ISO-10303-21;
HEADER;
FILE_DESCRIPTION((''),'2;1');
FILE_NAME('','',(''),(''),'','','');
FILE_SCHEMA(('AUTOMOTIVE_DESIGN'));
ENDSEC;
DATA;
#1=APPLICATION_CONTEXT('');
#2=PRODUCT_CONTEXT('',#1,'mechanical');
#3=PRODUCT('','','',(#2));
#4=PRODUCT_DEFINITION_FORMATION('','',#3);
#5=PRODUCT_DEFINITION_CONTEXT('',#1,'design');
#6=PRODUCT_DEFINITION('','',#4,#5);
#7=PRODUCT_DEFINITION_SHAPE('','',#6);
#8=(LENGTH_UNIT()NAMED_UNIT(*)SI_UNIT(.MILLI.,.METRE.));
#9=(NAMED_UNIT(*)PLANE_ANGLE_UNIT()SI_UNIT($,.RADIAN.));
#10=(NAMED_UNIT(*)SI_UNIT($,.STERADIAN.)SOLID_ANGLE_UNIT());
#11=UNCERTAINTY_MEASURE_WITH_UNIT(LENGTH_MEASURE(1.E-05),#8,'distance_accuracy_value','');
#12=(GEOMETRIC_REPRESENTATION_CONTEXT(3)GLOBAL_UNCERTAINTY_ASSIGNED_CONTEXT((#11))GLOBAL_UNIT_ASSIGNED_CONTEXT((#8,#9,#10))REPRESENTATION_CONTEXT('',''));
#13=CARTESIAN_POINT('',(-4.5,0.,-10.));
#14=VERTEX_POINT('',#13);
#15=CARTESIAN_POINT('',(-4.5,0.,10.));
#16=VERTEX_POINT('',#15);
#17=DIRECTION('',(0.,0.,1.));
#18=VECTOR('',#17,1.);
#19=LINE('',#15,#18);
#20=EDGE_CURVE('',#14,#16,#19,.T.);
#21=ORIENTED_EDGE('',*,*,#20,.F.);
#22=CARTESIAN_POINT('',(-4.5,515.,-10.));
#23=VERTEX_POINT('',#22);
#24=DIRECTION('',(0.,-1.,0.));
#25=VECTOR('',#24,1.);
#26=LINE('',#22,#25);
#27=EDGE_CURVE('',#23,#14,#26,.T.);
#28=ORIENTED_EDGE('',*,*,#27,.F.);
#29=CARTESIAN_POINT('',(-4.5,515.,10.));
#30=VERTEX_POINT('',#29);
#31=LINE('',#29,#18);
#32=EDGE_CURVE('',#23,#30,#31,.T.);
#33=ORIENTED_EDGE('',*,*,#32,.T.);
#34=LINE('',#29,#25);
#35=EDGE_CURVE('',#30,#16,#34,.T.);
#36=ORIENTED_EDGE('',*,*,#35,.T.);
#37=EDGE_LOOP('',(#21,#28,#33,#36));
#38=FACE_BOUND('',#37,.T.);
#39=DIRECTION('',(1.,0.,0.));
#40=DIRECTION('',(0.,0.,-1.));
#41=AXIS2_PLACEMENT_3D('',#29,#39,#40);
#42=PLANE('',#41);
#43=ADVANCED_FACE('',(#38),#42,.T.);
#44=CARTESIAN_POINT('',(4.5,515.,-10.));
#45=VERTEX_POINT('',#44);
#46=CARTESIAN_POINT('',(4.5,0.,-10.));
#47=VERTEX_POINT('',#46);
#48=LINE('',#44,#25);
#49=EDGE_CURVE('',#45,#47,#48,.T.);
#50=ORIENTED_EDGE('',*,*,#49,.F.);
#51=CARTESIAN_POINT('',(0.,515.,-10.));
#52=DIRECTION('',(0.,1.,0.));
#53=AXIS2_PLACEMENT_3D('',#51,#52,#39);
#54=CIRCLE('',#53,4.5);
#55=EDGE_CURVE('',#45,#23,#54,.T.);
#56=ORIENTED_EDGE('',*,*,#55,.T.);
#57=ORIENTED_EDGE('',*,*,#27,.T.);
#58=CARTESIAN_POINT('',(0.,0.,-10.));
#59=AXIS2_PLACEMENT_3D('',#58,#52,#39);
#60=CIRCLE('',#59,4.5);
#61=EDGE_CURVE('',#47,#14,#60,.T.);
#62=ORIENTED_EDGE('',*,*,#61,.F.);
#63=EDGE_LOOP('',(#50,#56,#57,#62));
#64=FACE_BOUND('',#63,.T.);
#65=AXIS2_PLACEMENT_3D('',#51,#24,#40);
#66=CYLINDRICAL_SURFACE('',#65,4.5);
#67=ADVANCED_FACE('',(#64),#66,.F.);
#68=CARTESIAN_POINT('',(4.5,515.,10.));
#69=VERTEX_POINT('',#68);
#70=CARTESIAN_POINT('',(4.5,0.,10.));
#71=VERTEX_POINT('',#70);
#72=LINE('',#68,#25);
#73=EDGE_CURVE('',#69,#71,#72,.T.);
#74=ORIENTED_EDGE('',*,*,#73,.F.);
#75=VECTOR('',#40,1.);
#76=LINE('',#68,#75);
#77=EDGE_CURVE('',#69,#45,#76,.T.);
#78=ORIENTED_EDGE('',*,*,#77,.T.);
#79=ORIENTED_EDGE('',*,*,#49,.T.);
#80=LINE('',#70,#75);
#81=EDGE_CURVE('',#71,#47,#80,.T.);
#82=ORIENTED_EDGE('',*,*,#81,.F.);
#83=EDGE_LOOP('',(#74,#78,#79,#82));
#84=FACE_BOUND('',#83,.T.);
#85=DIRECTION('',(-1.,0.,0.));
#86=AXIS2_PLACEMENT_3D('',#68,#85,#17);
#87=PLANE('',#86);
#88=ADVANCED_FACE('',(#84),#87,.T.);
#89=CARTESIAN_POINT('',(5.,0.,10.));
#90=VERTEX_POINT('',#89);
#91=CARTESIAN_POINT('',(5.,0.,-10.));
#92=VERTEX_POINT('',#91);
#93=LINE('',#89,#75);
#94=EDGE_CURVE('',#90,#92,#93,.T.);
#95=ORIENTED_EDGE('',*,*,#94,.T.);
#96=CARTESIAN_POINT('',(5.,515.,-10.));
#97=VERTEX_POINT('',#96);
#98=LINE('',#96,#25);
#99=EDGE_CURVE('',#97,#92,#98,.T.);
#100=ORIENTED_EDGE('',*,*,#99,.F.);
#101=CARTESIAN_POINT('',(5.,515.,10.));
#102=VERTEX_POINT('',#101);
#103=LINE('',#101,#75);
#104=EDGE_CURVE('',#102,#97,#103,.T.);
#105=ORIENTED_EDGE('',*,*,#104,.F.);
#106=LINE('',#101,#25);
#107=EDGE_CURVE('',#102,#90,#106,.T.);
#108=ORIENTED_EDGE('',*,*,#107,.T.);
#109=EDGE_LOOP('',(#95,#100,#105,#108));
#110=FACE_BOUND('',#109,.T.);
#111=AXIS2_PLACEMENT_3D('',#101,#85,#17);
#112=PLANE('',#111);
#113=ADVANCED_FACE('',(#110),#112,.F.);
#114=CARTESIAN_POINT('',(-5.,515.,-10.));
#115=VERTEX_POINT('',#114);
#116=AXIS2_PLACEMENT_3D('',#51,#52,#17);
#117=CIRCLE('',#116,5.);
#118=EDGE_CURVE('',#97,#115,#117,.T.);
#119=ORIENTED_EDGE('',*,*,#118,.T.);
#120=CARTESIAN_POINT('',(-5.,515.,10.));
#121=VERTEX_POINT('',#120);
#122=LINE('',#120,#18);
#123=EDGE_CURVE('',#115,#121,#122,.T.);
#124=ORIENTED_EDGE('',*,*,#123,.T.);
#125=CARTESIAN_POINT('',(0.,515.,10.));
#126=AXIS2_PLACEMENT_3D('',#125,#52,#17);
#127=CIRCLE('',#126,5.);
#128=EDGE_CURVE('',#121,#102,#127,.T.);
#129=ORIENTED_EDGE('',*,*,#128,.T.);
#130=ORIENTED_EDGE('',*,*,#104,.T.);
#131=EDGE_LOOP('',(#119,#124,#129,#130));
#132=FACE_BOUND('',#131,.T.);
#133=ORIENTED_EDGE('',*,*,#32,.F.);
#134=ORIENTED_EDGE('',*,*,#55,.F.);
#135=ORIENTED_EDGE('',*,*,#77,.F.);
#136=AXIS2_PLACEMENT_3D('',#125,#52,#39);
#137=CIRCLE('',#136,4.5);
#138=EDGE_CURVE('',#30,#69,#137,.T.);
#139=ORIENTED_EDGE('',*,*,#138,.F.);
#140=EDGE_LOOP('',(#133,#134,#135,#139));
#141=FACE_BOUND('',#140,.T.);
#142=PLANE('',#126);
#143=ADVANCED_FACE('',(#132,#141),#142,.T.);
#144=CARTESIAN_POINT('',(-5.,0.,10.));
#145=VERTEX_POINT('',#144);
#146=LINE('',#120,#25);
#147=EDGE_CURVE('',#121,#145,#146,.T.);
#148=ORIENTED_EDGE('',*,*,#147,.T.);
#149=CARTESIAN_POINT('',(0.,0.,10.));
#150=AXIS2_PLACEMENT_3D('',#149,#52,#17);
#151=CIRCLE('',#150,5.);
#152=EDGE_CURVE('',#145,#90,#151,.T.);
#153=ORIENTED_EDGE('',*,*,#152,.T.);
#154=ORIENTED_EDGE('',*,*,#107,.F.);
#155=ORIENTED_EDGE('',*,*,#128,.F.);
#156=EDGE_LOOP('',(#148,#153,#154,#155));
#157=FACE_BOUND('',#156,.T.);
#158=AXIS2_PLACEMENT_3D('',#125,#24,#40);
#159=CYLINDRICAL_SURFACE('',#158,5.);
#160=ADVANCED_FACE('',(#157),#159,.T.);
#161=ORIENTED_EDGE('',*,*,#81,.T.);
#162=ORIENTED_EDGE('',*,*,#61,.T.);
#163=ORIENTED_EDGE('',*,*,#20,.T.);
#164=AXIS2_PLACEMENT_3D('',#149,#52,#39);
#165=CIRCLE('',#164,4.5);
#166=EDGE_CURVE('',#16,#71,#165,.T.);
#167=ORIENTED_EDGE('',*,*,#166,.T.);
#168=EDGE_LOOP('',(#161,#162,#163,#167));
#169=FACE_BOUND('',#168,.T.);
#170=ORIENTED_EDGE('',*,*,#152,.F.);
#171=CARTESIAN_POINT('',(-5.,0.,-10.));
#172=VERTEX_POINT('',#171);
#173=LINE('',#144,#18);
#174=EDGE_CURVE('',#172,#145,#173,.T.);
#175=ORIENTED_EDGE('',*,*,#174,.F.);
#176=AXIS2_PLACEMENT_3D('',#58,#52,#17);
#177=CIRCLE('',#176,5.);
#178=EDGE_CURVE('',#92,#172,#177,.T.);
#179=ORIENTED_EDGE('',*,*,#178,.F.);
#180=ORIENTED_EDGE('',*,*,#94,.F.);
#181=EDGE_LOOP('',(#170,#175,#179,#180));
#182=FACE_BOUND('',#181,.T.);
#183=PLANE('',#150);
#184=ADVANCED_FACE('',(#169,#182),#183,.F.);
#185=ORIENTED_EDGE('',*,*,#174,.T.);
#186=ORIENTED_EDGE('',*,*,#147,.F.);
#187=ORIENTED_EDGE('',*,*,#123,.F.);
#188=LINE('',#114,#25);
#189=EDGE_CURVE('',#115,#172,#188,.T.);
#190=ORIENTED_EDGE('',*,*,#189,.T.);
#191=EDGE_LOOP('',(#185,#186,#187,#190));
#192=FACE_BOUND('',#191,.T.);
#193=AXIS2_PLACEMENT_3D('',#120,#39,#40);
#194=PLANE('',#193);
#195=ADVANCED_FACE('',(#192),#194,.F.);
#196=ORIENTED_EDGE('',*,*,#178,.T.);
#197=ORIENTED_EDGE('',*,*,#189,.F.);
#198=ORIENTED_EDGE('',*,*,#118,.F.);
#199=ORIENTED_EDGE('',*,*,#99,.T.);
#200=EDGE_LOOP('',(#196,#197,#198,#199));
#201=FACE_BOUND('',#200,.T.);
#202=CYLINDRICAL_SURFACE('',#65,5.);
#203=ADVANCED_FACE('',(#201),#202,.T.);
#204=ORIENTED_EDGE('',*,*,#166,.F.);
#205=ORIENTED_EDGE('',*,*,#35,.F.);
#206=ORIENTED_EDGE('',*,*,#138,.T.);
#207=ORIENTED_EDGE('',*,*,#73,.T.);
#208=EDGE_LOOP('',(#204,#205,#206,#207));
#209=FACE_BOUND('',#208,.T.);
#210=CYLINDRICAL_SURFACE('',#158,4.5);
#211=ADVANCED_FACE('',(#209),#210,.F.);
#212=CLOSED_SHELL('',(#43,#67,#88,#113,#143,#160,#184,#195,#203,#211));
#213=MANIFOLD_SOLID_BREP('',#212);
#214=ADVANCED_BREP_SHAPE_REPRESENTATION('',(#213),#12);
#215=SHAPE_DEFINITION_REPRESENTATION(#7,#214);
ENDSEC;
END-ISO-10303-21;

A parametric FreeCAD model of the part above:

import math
import FreeCAD as App
import Part
import Sketcher

doc = App.newDocument("Part")
body = doc.addObject("PartDesign::Body", "Body")

sketch1 = body.newObject("Sketcher::SketchObject", "Sketch")
sketch1.AttachmentSupport = (doc.getObject("XZ_Plane"), [""])
sketch1.MapMode = "FlatFace"
sketch1.addGeometry([
    Part.LineSegment(App.Vector(5, 10, 0), App.Vector(5, -10, 0)),
    Part.ArcOfCircle(Part.Circle(App.Vector(0, -10, 0), App.Vector(0, 0, 1), 5), math.radians(180), math.radians(360)),
    Part.LineSegment(App.Vector(-5, -10, 0), App.Vector(-5, 10, 0)),
    Part.ArcOfCircle(Part.Circle(App.Vector(0, 10, 0), App.Vector(0, 0, 1), 5), math.radians(0), math.radians(180)),
    Part.LineSegment(App.Vector(4.5, -10, 0), App.Vector(4.5, 10, 0)),
    Part.ArcOfCircle(Part.Circle(App.Vector(0, 10, 0), App.Vector(0, 0, 1), 4.5), math.radians(0), math.radians(180)),
    Part.LineSegment(App.Vector(-4.5, 10, 0), App.Vector(-4.5, -10, 0)),
    Part.ArcOfCircle(Part.Circle(App.Vector(0, -10, 0), App.Vector(0, 0, 1), 4.5), math.radians(180), math.radians(360)),
], False)
sketch1.addConstraint([
    Sketcher.Constraint("Tangent", 0, 2, 1, 2),
    Sketcher.Constraint("Tangent", 1, 1, 2, 1),
    Sketcher.Constraint("Tangent", 2, 2, 3, 2),
    Sketcher.Constraint("Tangent", 3, 1, 0, 1),
    Sketcher.Constraint("Tangent", 4, 2, 5, 1),
    Sketcher.Constraint("Tangent", 5, 2, 6, 1),
    Sketcher.Constraint("Tangent", 6, 2, 7, 1),
    Sketcher.Constraint("Tangent", 7, 2, 4, 1),
    Sketcher.Constraint("Vertical", 0),
    Sketcher.Constraint("Vertical", 2),
    Sketcher.Constraint("Vertical", 4),
    Sketcher.Constraint("Vertical", 6),
    Sketcher.Constraint("Coincident", 5, 3, 3, 3),
    Sketcher.Constraint("Symmetric", 1, 3, 3, 3, -1, 1),
    Sketcher.Constraint("Horizontal", 7, 3, 0, 2),
    Sketcher.Constraint("Radius", 1, 5.0),
    Sketcher.Constraint("Radius", 5, 4.5),
    Sketcher.Constraint("DistanceY", 0, 2, 0, 1, 20.0),
])
pad1 = body.newObject("PartDesign::Pad", "Pad")
pad1.Profile = sketch1
pad1.Length = 515
pad1.Reversed = True

doc.recompute()
